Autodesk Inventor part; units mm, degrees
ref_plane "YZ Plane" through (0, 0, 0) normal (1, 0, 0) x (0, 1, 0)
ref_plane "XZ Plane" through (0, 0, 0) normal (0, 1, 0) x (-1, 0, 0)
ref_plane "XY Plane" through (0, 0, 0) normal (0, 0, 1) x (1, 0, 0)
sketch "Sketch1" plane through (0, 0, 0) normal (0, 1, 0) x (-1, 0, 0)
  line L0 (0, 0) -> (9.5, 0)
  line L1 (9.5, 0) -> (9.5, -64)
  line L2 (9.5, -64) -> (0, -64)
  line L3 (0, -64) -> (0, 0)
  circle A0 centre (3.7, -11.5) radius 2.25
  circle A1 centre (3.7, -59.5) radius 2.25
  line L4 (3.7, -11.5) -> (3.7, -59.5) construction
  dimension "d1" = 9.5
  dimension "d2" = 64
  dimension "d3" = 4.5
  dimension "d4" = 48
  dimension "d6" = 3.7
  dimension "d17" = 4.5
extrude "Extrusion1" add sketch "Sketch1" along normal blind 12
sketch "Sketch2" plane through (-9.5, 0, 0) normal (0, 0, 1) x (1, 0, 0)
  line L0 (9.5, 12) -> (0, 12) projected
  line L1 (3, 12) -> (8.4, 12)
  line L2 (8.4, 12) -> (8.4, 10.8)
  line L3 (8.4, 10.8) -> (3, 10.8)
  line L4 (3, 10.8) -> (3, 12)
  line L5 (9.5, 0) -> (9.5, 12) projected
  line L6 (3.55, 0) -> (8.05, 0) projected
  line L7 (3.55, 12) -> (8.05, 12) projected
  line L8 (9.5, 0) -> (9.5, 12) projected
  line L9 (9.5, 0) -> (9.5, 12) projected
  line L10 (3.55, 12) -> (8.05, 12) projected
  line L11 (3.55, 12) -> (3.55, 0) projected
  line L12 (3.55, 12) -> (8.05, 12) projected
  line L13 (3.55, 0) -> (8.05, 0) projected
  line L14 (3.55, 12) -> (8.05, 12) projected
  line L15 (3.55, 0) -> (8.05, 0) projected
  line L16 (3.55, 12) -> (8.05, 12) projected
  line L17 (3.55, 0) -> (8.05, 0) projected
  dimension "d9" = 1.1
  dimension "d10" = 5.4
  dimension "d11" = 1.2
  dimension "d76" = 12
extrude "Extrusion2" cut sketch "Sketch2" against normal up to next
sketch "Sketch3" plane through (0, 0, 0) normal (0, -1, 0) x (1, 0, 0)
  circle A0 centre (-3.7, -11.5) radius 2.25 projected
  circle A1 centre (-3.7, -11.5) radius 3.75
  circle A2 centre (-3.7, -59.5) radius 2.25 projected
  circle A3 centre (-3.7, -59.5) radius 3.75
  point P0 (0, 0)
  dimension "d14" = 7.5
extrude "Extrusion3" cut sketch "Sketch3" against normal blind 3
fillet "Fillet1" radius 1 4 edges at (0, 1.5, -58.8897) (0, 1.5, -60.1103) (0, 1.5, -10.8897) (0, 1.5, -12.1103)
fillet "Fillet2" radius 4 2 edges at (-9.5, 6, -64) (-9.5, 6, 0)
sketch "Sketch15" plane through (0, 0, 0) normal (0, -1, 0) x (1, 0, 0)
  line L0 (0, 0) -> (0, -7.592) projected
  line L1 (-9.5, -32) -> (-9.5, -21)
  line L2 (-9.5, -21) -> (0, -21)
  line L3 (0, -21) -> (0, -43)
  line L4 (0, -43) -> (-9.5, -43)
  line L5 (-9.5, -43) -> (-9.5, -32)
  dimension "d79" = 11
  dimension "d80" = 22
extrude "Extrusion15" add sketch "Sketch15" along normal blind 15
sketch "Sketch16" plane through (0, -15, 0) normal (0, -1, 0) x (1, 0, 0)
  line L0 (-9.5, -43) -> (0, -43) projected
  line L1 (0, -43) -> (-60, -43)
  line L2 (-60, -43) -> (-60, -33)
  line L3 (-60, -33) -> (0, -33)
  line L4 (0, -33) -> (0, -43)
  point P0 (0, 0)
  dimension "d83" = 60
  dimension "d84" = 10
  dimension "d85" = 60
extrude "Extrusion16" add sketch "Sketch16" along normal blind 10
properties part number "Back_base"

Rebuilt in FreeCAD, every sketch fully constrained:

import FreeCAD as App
import Part
import Sketcher

V = App.Vector


def edges_at(feature, points):
    """Names of the edges that pass closest to the given points."""
    edges = feature.Shape.Edges
    near = lambda p: min(range(len(edges)), key=lambda i: edges[i].distToShape(Part.Vertex(*p))[0])
    return sorted({f"Edge{near(p) + 1}" for p in points})


def add_polygon(sketch, points):
    """Adds a closed chain of lines whose ends are joined by coincident constraints."""
    first, n = sketch.GeometryCount, len(points)
    for a, b in zip(points, points[1:] + points[:1]):
        sketch.addGeometry(Part.LineSegment(App.Vector(*a, 0), App.Vector(*b, 0)), False)
    for i in range(n):
        sketch.addConstraint(Sketcher.Constraint("Coincident", first + i, 2, first + (i + 1) % n, 1))

doc = App.newDocument("Part")
body = doc.addObject("PartDesign::Body", "Body")

# Sketch on XZ plane
sketch1 = body.newObject("Sketcher::SketchObject", "Sketch")
sketch1.AttachmentSupport = (doc.getObject("XZ_Plane"), [""])
sketch1.MapMode = "FlatFace"
add_polygon(sketch1, [(-9.5, 0), (0, 0), (0, -64), (-9.5, -64)])  # lines 0-3
sketch1.addGeometry(Part.Circle(V(-3.7, -59.5, 0), V(0, 0, 1), 2.2), False)  # 4
sketch1.addGeometry(Part.Circle(V(-3.7, -11.5, 0), V(0, 0, 1), 2.2), False)  # 5
sketch1.addConstraint([
    Sketcher.Constraint("Horizontal", 0),
    Sketcher.Constraint("Vertical", 1),
    Sketcher.Constraint("Horizontal", 2),
    Sketcher.Constraint("Vertical", 3),
    Sketcher.Constraint("Coincident", 0, 2, -1, 1),
    Sketcher.Constraint("Equal", 4, 5),
    Sketcher.Constraint("Vertical", 4, 3, 5, 3),
    Sketcher.Constraint("Diameter", 4, 4.5),
    Sketcher.Constraint("DistanceY", 1, 2, 1, 1, 64.0),
    Sketcher.Constraint("DistanceX", 0, 1, 0, 2, 9.5),
    Sketcher.Constraint("DistanceY", 4, 3, 5, 3, 48.0),
    Sketcher.Constraint("DistanceX", 4, 3, -1, 1, 3.7),
    Sketcher.Constraint("DistanceY", 1, 2, 4, 3, 4.5),
])
pad1 = body.newObject("PartDesign::Pad", "Pad")
pad1.Profile = sketch1
pad1.Length = 12
pad1.Reversed = True

# Sketch on XY plane
sketch2 = body.newObject("Sketcher::SketchObject", "Sketch001")
sketch2.AttachmentSupport = (doc.getObject("XY_Plane"), [""])
sketch2.MapMode = "FlatFace"
add_polygon(sketch2, [(-1.1, 10.8), (-1.1, 12), (-6.5, 12), (-6.5, 10.8)])  # lines 0-3
sketch2.addConstraint([
    Sketcher.Constraint("Vertical", 0),
    Sketcher.Constraint("Horizontal", 1),
    Sketcher.Constraint("Vertical", 2),
    Sketcher.Constraint("Horizontal", 3),
    Sketcher.Constraint("DistanceX", 1, 2, 1, 1, 5.4),
    Sketcher.Constraint("DistanceY", 0, 1, 0, 2, 1.2),
    Sketcher.Constraint("DistanceY", -1, 1, 0, 2, 12.0),
    Sketcher.Constraint("DistanceX", 0, 2, -1, 1, 1.1),
])
pocket1 = body.newObject("PartDesign::Pocket", "Pocket")
pocket1.Profile = sketch2
pocket1.Length = 64

# Sketch on XZ plane
sketch3 = body.newObject("Sketcher::SketchObject", "Sketch002")
sketch3.AttachmentSupport = (doc.getObject("XZ_Plane"), [""])
sketch3.MapMode = "FlatFace"
sketch3.addGeometry([
    Part.Circle(V(-3.7, -11.5, 0), V(0, 0, 1), 3.8),
    Part.Circle(V(-3.7, -11.5, 0), V(0, 0, 1), 2.2),
    Part.Circle(V(-3.7, -59.5, 0), V(0, 0, 1), 3.8),
    Part.Circle(V(-3.7, -59.5, 0), V(0, 0, 1), 2.2),
], False)
sketch3.addConstraint([
    Sketcher.Constraint("Coincident", 1, 3, 0, 3),
    Sketcher.Constraint("Coincident", 3, 3, 2, 3),
    Sketcher.Constraint("Equal", 0, 2),
    Sketcher.Constraint("Equal", 1, 3),
    Sketcher.Constraint("Vertical", 1, 3, 2, 3),
    Sketcher.Constraint("Diameter", 0, 7.5),
    Sketcher.Constraint("Diameter", 1, 4.5),
    Sketcher.Constraint("DistanceY", 2, 3, 0, 3, 48.0),
    Sketcher.Constraint("DistanceX", 0, 3, -1, 1, 3.7),
    Sketcher.Constraint("DistanceY", 0, 3, -1, 1, 11.5),
])
pocket2 = body.newObject("PartDesign::Pocket", "Pocket001")
pocket2.Profile = sketch3
pocket2.Length = 3
doc.recompute()

fillet = body.newObject("PartDesign::Fillet", "Fillet")
fillet.Base = (pocket2, edges_at(pocket2, [
    (0, 1.5, -58.89),
    (0, 1.5, -60.11),
    (0, 1.5, -10.89),
    (0, 1.5, -12.11),
]))
fillet.Radius = 1
doc.recompute()

fillet2 = body.newObject("PartDesign::Fillet", "Fillet001")
fillet2.Base = (fillet, edges_at(fillet, [(-9.5, 6, -64), (-9.5, 6, 0)]))
fillet2.Radius = 4

# Sketch on XZ plane
sketch4 = body.newObject("Sketcher::SketchObject", "Sketch003")
sketch4.AttachmentSupport = (doc.getObject("XZ_Plane"), [""])
sketch4.MapMode = "FlatFace"
add_polygon(sketch4, [(-10, -21), (-10, -43), (0, -43), (0, -21)])  # lines 0-3
sketch4.addConstraint([
    Sketcher.Constraint("Vertical", 0),
    Sketcher.Constraint("Horizontal", 1),
    Sketcher.Constraint("Vertical", 2),
    Sketcher.Constraint("Horizontal", 3),
    Sketcher.Constraint("PointOnObject", 1, 2, -2),
    Sketcher.Constraint("DistanceY", 0, 2, 0, 1, 22.0),
    Sketcher.Constraint("DistanceX", 1, 1, 1, 2, 9.5),
    Sketcher.Constraint("DistanceY", 0, 2, -1, 1, 43.0),
])
pad2 = body.newObject("PartDesign::Pad", "Pad001")
pad2.Profile = sketch4
pad2.Length = 15

# Sketch on XZ plane
sketch5 = body.newObject("Sketcher::SketchObject", "Sketch004")
sketch5.AttachmentSupport = (doc.getObject("XZ_Plane"), [""])
sketch5.MapMode = "FlatFace"
sketch5.AttachmentOffset = App.Placement(V(0, 0, 15), App.Rotation())
add_polygon(sketch5, [(-60, -43), (0, -43), (0, -33), (-60, -33)])  # lines 0-3
sketch5.addConstraint([
    Sketcher.Constraint("Horizontal", 0),
    Sketcher.Constraint("Vertical", 1),
    Sketcher.Constraint("Horizontal", 2),
    Sketcher.Constraint("Vertical", 3),
    Sketcher.Constraint("PointOnObject", 0, 2, -2),
    Sketcher.Constraint("DistanceX", 0, 1, 0, 2, 60.0),
    Sketcher.Constraint("DistanceY", 1, 1, 1, 2, 10.0),
    Sketcher.Constraint("DistanceY", 0, 2, -1, 1, 43.0),
])
pad3 = body.newObject("PartDesign::Pad", "Pad002")
pad3.Profile = sketch5
pad3.Length = 10

doc.recompute()
